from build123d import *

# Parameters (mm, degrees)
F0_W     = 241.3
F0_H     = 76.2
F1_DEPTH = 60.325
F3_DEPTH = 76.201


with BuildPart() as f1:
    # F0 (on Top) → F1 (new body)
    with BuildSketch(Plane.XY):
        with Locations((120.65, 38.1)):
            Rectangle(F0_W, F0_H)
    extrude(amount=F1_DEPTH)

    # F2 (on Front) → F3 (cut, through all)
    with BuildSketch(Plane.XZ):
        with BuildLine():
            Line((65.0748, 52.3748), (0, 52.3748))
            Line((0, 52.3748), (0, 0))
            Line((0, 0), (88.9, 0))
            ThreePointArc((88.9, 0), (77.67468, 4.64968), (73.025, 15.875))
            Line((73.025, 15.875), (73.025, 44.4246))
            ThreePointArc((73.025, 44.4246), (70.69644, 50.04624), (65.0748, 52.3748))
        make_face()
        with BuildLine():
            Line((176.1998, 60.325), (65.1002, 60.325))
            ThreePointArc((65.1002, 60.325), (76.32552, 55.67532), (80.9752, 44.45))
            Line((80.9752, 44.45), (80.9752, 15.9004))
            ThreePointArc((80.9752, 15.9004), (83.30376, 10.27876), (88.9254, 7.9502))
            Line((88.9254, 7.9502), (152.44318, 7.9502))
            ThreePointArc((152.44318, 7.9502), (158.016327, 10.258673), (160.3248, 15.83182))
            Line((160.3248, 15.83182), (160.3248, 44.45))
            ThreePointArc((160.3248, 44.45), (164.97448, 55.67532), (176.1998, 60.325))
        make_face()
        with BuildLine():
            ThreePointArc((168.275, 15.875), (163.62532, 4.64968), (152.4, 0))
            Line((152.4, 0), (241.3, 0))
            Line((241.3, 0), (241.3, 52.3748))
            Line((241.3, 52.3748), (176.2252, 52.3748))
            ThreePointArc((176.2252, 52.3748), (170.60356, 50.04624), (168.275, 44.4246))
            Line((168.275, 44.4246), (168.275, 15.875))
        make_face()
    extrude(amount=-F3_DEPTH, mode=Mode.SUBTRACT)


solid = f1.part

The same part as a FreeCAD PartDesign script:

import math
import FreeCAD as App
import Part
import Sketcher
from FreeCAD import Vector
Q = App.Units.Quantity


def add_polygon(sketch, points):
    """Adds a closed chain of lines whose ends are joined by coincident constraints."""
    first, n = sketch.GeometryCount, len(points)
    for a, b in zip(points, points[1:] + points[:1]):
        sketch.addGeometry(Part.LineSegment(App.Vector(*a, 0), App.Vector(*b, 0)), False)
    for i in range(n):
        sketch.addConstraint(Sketcher.Constraint("Coincident", first + i, 2, first + (i + 1) % n, 1))

doc = App.newDocument("Part")
body = doc.addObject("PartDesign::Body", "Body")

# Sketch on XY plane
sketch1 = doc.addObject("Sketcher::SketchObject", "Sketch")
body.addObject(sketch1)
sketch1.AttachmentSupport = (doc.XY_Plane, [""])
sketch1.MapMode = "FlatFace"
add_polygon(sketch1, [(0, 76), (0, 0), (241, 0), (241, 76)])  # lines 0-3
sketch1.addConstraint(Sketcher.Constraint("Vertical", 0))
sketch1.addConstraint(Sketcher.Constraint("Horizontal", 1))
sketch1.addConstraint(Sketcher.Constraint("Vertical", 2))
sketch1.addConstraint(Sketcher.Constraint("Horizontal", 3))
sketch1.addConstraint(Sketcher.Constraint("Coincident", 0, 2, -1, 1))
sketch1.addConstraint(Sketcher.Constraint("DistanceY", 0, 2, 0, 1, Q("3 in")))
sketch1.addConstraint(Sketcher.Constraint("DistanceX", 1, 1, 1, 2, Q("9.5 in")))
pad1 = doc.addObject("PartDesign::Pad", "Pad")
body.addObject(pad1)
pad1.Profile = sketch1
pad1.Length = Q("2.375 in")

# Sketch on XZ plane
sketch2 = doc.addObject("Sketcher::SketchObject", "Sketch001")
body.addObject(sketch2)
sketch2.AttachmentSupport = (doc.XZ_Plane, [""])
sketch2.MapMode = "FlatFace"
sketch2.addGeometry(Part.LineSegment(Vector(65, 52, 0), Vector(0, 52, 0)), False)
sketch2.addGeometry(Part.LineSegment(Vector(0, 52, 0), Vector(0, 0, 0)), False)
sketch2.addGeometry(Part.LineSegment(Vector(0, 0, 0), Vector(89, 0, 0)), False)
sketch2.addGeometry(Part.ArcOfCircle(Part.Circle(Vector(89, 16, 0), Vector(0, 0, 1), 16), math.radians(-180), math.radians(-90)), False)
sketch2.addGeometry(Part.LineSegment(Vector(73, 16, 0), Vector(73, 44, 0)), False)
sketch2.addGeometry(Part.ArcOfCircle(Part.Circle(Vector(65, 44, 0), Vector(0, 0, 1), 8), math.radians(0), math.radians(90)), False)
sketch2.addGeometry(Part.LineSegment(Vector(176, 60, 0), Vector(65, 60, 0)), False)
sketch2.addGeometry(Part.ArcOfCircle(Part.Circle(Vector(65, 44, 0), Vector(0, 0, 1), 16), math.radians(0), math.radians(90)), False)
sketch2.addGeometry(Part.LineSegment(Vector(81, 44, 0), Vector(81, 16, 0)), False)
sketch2.addGeometry(Part.ArcOfCircle(Part.Circle(Vector(89, 16, 0), Vector(0, 0, 1), 8), math.radians(-180), math.radians(-90)), False)
sketch2.addGeometry(Part.LineSegment(Vector(89, 8, 0), Vector(152, 8, 0)), False)
sketch2.addGeometry(Part.ArcOfCircle(Part.Circle(Vector(152, 16, 0), Vector(0, 0, 1), 8), math.radians(-90), math.radians(0)), False)
sketch2.addGeometry(Part.LineSegment(Vector(160, 16, 0), Vector(160, 44, 0)), False)
sketch2.addGeometry(Part.ArcOfCircle(Part.Circle(Vector(176, 44, 0), Vector(0, 0, 1), 16), math.radians(90), math.radians(180)), False)
sketch2.addGeometry(Part.ArcOfCircle(Part.Circle(Vector(152, 16, 0), Vector(0, 0, 1), 16), math.radians(-90), math.radians(0)), False)
sketch2.addGeometry(Part.LineSegment(Vector(152, 0, 0), Vector(241, 0, 0)), False)
sketch2.addGeometry(Part.LineSegment(Vector(241, 0, 0), Vector(241, 52, 0)), False)
sketch2.addGeometry(Part.LineSegment(Vector(241, 52, 0), Vector(176, 52, 0)), False)
sketch2.addGeometry(Part.ArcOfCircle(Part.Circle(Vector(176, 44, 0), Vector(0, 0, 1), 8), math.radians(90), math.radians(180)), False)
sketch2.addGeometry(Part.LineSegment(Vector(168, 44, 0), Vector(168, 16, 0)), False)
sketch2.addConstraint(Sketcher.Constraint("Coincident", 0, 2, 1, 1))
sketch2.addConstraint(Sketcher.Constraint("Coincident", 1, 2, 2, 1))
sketch2.addConstraint(Sketcher.Constraint("Tangent", 2, 2, 3, 2))
sketch2.addConstraint(Sketcher.Constraint("Tangent", 3, 1, 4, 1))
sketch2.addConstraint(Sketcher.Constraint("Tangent", 4, 2, 5, 1))
sketch2.addConstraint(Sketcher.Constraint("Tangent", 5, 2, 0, 1))
sketch2.addConstraint(Sketcher.Constraint("Tangent", 6, 2, 7, 2))
sketch2.addConstraint(Sketcher.Constraint("Tangent", 7, 1, 8, 1))
sketch2.addConstraint(Sketcher.Constraint("Tangent", 8, 2, 9, 1))
sketch2.addConstraint(Sketcher.Constraint("Tangent", 9, 2, 10, 1))
sketch2.addConstraint(Sketcher.Constraint("Tangent", 10, 2, 11, 1))
sketch2.addConstraint(Sketcher.Constraint("Tangent", 11, 2, 12, 1))
sketch2.addConstraint(Sketcher.Constraint("Tangent", 12, 2, 13, 2))
sketch2.addConstraint(Sketcher.Constraint("Tangent", 13, 1, 6, 1))
sketch2.addConstraint(Sketcher.Constraint("Tangent", 14, 1, 15, 1))
sketch2.addConstraint(Sketcher.Constraint("Coincident", 15, 2, 16, 1))
sketch2.addConstraint(Sketcher.Constraint("Coincident", 16, 2, 17, 1))
sketch2.addConstraint(Sketcher.Constraint("Tangent", 17, 2, 18, 1))
sketch2.addConstraint(Sketcher.Constraint("Tangent", 18, 2, 19, 1))
sketch2.addConstraint(Sketcher.Constraint("Tangent", 19, 2, 14, 2))
sketch2.addConstraint(Sketcher.Constraint("Horizontal", 0))
sketch2.addConstraint(Sketcher.Constraint("Vertical", 1))
sketch2.addConstraint(Sketcher.Constraint("Horizontal", 2))
sketch2.addConstraint(Sketcher.Constraint("Vertical", 4))
sketch2.addConstraint(Sketcher.Constraint("Horizontal", 6))
sketch2.addConstraint(Sketcher.Constraint("Vertical", 8))
sketch2.addConstraint(Sketcher.Constraint("Horizontal", 10))
sketch2.addConstraint(Sketcher.Constraint("Vertical", 12))
sketch2.addConstraint(Sketcher.Constraint("Horizontal", 15))
sketch2.addConstraint(Sketcher.Constraint("Vertical", 16))
sketch2.addConstraint(Sketcher.Constraint("Horizontal", 17))
sketch2.addConstraint(Sketcher.Constraint("Vertical", 19))
sketch2.addConstraint(Sketcher.Constraint("Coincident", 1, 2, -1, 1))
sketch2.addConstraint(Sketcher.Constraint("Equal", 3, 7))
sketch2.addConstraint(Sketcher.Constraint("Equal", 5, 9))
sketch2.addConstraint(Sketcher.Constraint("Equal", 7, 13))
sketch2.addConstraint(Sketcher.Constraint("Equal", 13, 14))
sketch2.addConstraint(Sketcher.Constraint("Equal", 9, 18))
sketch2.addConstraint(Sketcher.Constraint("PointOnObject", 14, 1, -1))
sketch2.addConstraint(Sketcher.Constraint("Horizontal", 5, 3, 18, 3))
sketch2.addConstraint(Sketcher.Constraint("Equal", 2, 15))
sketch2.addConstraint(Sketcher.Constraint("Equal", 4, 8))
sketch2.addConstraint(Sketcher.Constraint("DistanceX", 2, 1, 2, 2, Q("3.5 in")))
sketch2.addConstraint(Sketcher.Constraint("DistanceX", -1, 1, 14, 3, Q("6 in")))
sketch2.addConstraint(Sketcher.Constraint("Radius", 3, Q("0.625 in")))
sketch2.addConstraint(Sketcher.Constraint("Radius", 5, Q("0.313 in")))
sketch2.addConstraint(Sketcher.Constraint("Radius", 11, Q("0.3103 in")))
sketch2.addConstraint(Sketcher.Constraint("DistanceX", 6, 2, 6, 1, Q("4.374 in")))
sketch2.addConstraint(Sketcher.Constraint("DistanceY", 1, 2, 1, 1, Q("2.062 in")))
sketch2.addConstraint(Sketcher.Constraint("DistanceY", -1, 1, 7, 3, Q("1.75 in")))
sketch2.addConstraint(Sketcher.Constraint("DistanceX", -1, 1, 7, 3, Q("2.563 in")))
pocket1 = doc.addObject("PartDesign::Pocket", "Pocket")
body.addObject(pocket1)
pocket1.Profile = sketch2
pocket1.Type = "ThroughAll"

doc.recompute()
